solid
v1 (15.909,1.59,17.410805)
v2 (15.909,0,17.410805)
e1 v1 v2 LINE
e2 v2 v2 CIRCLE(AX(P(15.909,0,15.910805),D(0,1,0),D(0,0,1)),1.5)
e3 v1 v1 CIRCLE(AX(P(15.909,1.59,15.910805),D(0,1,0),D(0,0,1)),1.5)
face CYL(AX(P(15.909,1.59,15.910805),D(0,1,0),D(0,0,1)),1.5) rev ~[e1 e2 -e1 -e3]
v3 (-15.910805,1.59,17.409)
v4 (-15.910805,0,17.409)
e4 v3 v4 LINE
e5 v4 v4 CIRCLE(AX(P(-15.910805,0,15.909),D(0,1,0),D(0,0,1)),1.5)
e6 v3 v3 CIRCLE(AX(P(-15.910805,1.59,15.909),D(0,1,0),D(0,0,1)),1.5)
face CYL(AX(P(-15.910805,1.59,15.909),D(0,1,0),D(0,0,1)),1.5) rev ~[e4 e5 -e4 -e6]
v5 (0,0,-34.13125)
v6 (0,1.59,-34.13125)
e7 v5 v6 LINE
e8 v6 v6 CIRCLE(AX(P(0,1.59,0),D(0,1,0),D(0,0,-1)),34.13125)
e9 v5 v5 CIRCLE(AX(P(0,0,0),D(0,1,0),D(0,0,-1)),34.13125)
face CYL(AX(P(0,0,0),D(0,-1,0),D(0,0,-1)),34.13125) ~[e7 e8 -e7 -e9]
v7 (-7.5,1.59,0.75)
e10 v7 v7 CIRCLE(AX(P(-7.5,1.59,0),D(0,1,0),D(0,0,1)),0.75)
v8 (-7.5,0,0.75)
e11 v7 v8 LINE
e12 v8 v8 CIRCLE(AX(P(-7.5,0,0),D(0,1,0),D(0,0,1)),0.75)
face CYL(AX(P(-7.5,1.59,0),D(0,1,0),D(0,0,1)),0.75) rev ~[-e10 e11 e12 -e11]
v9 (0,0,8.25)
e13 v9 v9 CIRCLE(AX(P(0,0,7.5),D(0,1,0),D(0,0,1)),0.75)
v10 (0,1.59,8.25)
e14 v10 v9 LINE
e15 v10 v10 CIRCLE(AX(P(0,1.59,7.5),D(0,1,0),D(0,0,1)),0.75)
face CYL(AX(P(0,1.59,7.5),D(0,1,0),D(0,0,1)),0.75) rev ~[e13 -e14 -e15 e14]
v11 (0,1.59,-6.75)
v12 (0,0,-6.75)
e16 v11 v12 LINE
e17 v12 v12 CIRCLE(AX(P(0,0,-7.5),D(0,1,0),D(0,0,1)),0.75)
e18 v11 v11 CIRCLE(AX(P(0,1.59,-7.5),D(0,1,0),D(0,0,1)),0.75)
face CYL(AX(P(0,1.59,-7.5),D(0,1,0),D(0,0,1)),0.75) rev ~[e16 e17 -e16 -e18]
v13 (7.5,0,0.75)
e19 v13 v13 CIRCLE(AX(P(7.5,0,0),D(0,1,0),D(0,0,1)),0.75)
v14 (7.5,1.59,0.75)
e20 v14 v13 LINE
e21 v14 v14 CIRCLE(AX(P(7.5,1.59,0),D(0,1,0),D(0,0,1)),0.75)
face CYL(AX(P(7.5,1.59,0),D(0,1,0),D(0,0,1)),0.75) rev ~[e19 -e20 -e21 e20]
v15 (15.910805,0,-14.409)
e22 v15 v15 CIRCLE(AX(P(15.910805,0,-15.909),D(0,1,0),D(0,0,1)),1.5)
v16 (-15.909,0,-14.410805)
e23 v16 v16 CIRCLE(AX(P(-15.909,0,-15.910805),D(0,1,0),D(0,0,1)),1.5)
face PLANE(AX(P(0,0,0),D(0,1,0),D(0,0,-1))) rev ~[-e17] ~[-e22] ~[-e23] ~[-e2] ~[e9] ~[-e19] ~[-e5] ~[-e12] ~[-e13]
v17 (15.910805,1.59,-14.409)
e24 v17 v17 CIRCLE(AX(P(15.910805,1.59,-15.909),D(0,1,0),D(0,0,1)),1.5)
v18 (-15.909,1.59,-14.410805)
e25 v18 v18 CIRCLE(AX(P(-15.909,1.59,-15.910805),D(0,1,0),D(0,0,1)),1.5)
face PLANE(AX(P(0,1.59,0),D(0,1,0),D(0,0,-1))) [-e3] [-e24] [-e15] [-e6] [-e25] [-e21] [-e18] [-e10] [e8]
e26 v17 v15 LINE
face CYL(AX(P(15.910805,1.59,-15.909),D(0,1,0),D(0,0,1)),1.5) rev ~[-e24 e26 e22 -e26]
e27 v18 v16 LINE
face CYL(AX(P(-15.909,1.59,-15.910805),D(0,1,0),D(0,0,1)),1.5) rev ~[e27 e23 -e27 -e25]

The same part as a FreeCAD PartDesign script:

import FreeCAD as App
import Part
import Sketcher

V = App.Vector

doc = App.newDocument("Part")
params = doc.addObject("Spreadsheet::Sheet", "Params")
for row, (alias, value) in enumerate([
    ("pad1_length", "1.59 mm"),
    ("sketch2_diameter", "1.5 mm"),
    ("pocket1_length", "1.59 mm"),
    ("sketch3_diameter", "3 mm"),
    ("pocket2_length", "1.59 mm"),
], start=1):
    params.set(f"A{row}", alias)
    params.set(f"B{row}", "=" + value)
    params.setAlias(f"B{row}", alias)

body = doc.addObject("PartDesign::Body", "Body")

# Sketch on XZ plane
sketch1 = body.newObject("Sketcher::SketchObject", "Sketch")
sketch1.AttachmentSupport = (doc.getObject("XZ_Plane"), [""])
sketch1.MapMode = "FlatFace"
sketch1.addGeometry(Part.Circle(V(0, 0, 0), V(0, 0, 1), 34), False)
sketch1.addConstraint(Sketcher.Constraint("Coincident", 0, 3, -1, 1))
sketch1.addConstraint(Sketcher.Constraint("Diameter", 0, 68.2625))
pad1 = body.newObject("PartDesign::Pad", "Pad")
pad1.Profile = sketch1
pad1.setExpression("Length", "Params.pad1_length")
pad1.Reversed = True

# Sketch on XZ plane
sketch2 = body.newObject("Sketcher::SketchObject", "Sketch001")
sketch2.AttachmentSupport = (doc.getObject("XZ_Plane"), [""])
sketch2.MapMode = "FlatFace"
sketch2.AttachmentOffset = App.Placement(V(0, 0, -1.59), App.Rotation())
sketch2.addGeometry(Part.Circle(V(0, 7.5, 0), V(0, 0, 1), 0.8), False)
sketch2.addGeometry(Part.Circle(V(0, -7.5, 0), V(0, 0, 1), 0.8), False)
sketch2.addGeometry(Part.Circle(V(-7.5, 0, 0), V(0, 0, 1), 0.8), False)
sketch2.addGeometry(Part.Circle(V(7.5, 0, 0), V(0, 0, 1), 0.8), False)
sketch2.addConstraint(Sketcher.Constraint("Equal", 0, 1))
sketch2.addConstraint(Sketcher.Constraint("Equal", 1, 2))
sketch2.addConstraint(Sketcher.Constraint("Equal", 2, 3))
sketch2.addConstraint(Sketcher.Constraint("Symmetric", 0, 3, 1, 3, -1, 1))
sketch2.addConstraint(Sketcher.Constraint("Symmetric", 2, 3, 3, 3, -1, 1))
sketch2.addConstraint(Sketcher.Constraint("PointOnObject", 0, 3, -2))
sketch2.addConstraint(Sketcher.Constraint("PointOnObject", 2, 3, -1))
sketch2.addConstraint(Sketcher.Constraint("Diameter", 0, 1.5))
sketch2.addConstraint(Sketcher.Constraint("DistanceY", 1, 3, 0, 3, 15.0))
sketch2.addConstraint(Sketcher.Constraint("DistanceX", 2, 3, 3, 3, 15.0))
sketch2.setExpression("Constraints[7]", "Params.sketch2_diameter")
pocket1 = body.newObject("PartDesign::Pocket", "Pocket")
pocket1.Profile = sketch2
pocket1.setExpression("Length", "Params.pocket1_length")
pocket1.Reversed = True

# Sketch on XZ plane
sketch3 = body.newObject("Sketcher::SketchObject", "Sketch002")
sketch3.AttachmentSupport = (doc.getObject("XZ_Plane"), [""])
sketch3.MapMode = "FlatFace"
sketch3.AttachmentOffset = App.Placement(V(0, 0, -1.59), App.Rotation())
sketch3.addGeometry(Part.Circle(V(-15.9, -15.9, 0), V(0, 0, 1), 1.5), False)
sketch3.addGeometry(Part.Circle(V(15.9, -15.9, 0), V(0, 0, 1), 1.5), False)
sketch3.addGeometry(Part.Circle(V(15.9, 15.9, 0), V(0, 0, 1), 1.5), False)
sketch3.addGeometry(Part.Circle(V(-15.9, 15.9, 0), V(0, 0, 1), 1.5), False)
sketch3.addConstraint(Sketcher.Constraint("Equal", 0, 1))
sketch3.addConstraint(Sketcher.Constraint("Equal", 1, 2))
sketch3.addConstraint(Sketcher.Constraint("Equal", 2, 3))
sketch3.addConstraint(Sketcher.Constraint("Symmetric", 0, 3, 2, 3, -1, 1))
sketch3.addConstraint(Sketcher.Constraint("Symmetric", 1, 3, 3, 3, -1, 1))
sketch3.addConstraint(Sketcher.Constraint("Diameter", 0, 3.0))
sketch3.addConstraint(Sketcher.Constraint("DistanceX", 0, 3, -1, 1, 15.909))
sketch3.addConstraint(Sketcher.Constraint("DistanceY", 1, 3, -1, 1, 15.909))
sketch3.addConstraint(Sketcher.Constraint("DistanceY", 0, 3, 2, 3, 31.82161))
sketch3.addConstraint(Sketcher.Constraint("DistanceX", 3, 3, 1, 3, 31.82161))
sketch3.setExpression("Constraints[5]", "Params.sketch3_diameter")
pocket2 = body.newObject("PartDesign::Pocket", "Pocket001")
pocket2.Profile = sketch3
pocket2.setExpression("Length", "Params.pocket2_length")
pocket2.Reversed = True

doc.recompute()
